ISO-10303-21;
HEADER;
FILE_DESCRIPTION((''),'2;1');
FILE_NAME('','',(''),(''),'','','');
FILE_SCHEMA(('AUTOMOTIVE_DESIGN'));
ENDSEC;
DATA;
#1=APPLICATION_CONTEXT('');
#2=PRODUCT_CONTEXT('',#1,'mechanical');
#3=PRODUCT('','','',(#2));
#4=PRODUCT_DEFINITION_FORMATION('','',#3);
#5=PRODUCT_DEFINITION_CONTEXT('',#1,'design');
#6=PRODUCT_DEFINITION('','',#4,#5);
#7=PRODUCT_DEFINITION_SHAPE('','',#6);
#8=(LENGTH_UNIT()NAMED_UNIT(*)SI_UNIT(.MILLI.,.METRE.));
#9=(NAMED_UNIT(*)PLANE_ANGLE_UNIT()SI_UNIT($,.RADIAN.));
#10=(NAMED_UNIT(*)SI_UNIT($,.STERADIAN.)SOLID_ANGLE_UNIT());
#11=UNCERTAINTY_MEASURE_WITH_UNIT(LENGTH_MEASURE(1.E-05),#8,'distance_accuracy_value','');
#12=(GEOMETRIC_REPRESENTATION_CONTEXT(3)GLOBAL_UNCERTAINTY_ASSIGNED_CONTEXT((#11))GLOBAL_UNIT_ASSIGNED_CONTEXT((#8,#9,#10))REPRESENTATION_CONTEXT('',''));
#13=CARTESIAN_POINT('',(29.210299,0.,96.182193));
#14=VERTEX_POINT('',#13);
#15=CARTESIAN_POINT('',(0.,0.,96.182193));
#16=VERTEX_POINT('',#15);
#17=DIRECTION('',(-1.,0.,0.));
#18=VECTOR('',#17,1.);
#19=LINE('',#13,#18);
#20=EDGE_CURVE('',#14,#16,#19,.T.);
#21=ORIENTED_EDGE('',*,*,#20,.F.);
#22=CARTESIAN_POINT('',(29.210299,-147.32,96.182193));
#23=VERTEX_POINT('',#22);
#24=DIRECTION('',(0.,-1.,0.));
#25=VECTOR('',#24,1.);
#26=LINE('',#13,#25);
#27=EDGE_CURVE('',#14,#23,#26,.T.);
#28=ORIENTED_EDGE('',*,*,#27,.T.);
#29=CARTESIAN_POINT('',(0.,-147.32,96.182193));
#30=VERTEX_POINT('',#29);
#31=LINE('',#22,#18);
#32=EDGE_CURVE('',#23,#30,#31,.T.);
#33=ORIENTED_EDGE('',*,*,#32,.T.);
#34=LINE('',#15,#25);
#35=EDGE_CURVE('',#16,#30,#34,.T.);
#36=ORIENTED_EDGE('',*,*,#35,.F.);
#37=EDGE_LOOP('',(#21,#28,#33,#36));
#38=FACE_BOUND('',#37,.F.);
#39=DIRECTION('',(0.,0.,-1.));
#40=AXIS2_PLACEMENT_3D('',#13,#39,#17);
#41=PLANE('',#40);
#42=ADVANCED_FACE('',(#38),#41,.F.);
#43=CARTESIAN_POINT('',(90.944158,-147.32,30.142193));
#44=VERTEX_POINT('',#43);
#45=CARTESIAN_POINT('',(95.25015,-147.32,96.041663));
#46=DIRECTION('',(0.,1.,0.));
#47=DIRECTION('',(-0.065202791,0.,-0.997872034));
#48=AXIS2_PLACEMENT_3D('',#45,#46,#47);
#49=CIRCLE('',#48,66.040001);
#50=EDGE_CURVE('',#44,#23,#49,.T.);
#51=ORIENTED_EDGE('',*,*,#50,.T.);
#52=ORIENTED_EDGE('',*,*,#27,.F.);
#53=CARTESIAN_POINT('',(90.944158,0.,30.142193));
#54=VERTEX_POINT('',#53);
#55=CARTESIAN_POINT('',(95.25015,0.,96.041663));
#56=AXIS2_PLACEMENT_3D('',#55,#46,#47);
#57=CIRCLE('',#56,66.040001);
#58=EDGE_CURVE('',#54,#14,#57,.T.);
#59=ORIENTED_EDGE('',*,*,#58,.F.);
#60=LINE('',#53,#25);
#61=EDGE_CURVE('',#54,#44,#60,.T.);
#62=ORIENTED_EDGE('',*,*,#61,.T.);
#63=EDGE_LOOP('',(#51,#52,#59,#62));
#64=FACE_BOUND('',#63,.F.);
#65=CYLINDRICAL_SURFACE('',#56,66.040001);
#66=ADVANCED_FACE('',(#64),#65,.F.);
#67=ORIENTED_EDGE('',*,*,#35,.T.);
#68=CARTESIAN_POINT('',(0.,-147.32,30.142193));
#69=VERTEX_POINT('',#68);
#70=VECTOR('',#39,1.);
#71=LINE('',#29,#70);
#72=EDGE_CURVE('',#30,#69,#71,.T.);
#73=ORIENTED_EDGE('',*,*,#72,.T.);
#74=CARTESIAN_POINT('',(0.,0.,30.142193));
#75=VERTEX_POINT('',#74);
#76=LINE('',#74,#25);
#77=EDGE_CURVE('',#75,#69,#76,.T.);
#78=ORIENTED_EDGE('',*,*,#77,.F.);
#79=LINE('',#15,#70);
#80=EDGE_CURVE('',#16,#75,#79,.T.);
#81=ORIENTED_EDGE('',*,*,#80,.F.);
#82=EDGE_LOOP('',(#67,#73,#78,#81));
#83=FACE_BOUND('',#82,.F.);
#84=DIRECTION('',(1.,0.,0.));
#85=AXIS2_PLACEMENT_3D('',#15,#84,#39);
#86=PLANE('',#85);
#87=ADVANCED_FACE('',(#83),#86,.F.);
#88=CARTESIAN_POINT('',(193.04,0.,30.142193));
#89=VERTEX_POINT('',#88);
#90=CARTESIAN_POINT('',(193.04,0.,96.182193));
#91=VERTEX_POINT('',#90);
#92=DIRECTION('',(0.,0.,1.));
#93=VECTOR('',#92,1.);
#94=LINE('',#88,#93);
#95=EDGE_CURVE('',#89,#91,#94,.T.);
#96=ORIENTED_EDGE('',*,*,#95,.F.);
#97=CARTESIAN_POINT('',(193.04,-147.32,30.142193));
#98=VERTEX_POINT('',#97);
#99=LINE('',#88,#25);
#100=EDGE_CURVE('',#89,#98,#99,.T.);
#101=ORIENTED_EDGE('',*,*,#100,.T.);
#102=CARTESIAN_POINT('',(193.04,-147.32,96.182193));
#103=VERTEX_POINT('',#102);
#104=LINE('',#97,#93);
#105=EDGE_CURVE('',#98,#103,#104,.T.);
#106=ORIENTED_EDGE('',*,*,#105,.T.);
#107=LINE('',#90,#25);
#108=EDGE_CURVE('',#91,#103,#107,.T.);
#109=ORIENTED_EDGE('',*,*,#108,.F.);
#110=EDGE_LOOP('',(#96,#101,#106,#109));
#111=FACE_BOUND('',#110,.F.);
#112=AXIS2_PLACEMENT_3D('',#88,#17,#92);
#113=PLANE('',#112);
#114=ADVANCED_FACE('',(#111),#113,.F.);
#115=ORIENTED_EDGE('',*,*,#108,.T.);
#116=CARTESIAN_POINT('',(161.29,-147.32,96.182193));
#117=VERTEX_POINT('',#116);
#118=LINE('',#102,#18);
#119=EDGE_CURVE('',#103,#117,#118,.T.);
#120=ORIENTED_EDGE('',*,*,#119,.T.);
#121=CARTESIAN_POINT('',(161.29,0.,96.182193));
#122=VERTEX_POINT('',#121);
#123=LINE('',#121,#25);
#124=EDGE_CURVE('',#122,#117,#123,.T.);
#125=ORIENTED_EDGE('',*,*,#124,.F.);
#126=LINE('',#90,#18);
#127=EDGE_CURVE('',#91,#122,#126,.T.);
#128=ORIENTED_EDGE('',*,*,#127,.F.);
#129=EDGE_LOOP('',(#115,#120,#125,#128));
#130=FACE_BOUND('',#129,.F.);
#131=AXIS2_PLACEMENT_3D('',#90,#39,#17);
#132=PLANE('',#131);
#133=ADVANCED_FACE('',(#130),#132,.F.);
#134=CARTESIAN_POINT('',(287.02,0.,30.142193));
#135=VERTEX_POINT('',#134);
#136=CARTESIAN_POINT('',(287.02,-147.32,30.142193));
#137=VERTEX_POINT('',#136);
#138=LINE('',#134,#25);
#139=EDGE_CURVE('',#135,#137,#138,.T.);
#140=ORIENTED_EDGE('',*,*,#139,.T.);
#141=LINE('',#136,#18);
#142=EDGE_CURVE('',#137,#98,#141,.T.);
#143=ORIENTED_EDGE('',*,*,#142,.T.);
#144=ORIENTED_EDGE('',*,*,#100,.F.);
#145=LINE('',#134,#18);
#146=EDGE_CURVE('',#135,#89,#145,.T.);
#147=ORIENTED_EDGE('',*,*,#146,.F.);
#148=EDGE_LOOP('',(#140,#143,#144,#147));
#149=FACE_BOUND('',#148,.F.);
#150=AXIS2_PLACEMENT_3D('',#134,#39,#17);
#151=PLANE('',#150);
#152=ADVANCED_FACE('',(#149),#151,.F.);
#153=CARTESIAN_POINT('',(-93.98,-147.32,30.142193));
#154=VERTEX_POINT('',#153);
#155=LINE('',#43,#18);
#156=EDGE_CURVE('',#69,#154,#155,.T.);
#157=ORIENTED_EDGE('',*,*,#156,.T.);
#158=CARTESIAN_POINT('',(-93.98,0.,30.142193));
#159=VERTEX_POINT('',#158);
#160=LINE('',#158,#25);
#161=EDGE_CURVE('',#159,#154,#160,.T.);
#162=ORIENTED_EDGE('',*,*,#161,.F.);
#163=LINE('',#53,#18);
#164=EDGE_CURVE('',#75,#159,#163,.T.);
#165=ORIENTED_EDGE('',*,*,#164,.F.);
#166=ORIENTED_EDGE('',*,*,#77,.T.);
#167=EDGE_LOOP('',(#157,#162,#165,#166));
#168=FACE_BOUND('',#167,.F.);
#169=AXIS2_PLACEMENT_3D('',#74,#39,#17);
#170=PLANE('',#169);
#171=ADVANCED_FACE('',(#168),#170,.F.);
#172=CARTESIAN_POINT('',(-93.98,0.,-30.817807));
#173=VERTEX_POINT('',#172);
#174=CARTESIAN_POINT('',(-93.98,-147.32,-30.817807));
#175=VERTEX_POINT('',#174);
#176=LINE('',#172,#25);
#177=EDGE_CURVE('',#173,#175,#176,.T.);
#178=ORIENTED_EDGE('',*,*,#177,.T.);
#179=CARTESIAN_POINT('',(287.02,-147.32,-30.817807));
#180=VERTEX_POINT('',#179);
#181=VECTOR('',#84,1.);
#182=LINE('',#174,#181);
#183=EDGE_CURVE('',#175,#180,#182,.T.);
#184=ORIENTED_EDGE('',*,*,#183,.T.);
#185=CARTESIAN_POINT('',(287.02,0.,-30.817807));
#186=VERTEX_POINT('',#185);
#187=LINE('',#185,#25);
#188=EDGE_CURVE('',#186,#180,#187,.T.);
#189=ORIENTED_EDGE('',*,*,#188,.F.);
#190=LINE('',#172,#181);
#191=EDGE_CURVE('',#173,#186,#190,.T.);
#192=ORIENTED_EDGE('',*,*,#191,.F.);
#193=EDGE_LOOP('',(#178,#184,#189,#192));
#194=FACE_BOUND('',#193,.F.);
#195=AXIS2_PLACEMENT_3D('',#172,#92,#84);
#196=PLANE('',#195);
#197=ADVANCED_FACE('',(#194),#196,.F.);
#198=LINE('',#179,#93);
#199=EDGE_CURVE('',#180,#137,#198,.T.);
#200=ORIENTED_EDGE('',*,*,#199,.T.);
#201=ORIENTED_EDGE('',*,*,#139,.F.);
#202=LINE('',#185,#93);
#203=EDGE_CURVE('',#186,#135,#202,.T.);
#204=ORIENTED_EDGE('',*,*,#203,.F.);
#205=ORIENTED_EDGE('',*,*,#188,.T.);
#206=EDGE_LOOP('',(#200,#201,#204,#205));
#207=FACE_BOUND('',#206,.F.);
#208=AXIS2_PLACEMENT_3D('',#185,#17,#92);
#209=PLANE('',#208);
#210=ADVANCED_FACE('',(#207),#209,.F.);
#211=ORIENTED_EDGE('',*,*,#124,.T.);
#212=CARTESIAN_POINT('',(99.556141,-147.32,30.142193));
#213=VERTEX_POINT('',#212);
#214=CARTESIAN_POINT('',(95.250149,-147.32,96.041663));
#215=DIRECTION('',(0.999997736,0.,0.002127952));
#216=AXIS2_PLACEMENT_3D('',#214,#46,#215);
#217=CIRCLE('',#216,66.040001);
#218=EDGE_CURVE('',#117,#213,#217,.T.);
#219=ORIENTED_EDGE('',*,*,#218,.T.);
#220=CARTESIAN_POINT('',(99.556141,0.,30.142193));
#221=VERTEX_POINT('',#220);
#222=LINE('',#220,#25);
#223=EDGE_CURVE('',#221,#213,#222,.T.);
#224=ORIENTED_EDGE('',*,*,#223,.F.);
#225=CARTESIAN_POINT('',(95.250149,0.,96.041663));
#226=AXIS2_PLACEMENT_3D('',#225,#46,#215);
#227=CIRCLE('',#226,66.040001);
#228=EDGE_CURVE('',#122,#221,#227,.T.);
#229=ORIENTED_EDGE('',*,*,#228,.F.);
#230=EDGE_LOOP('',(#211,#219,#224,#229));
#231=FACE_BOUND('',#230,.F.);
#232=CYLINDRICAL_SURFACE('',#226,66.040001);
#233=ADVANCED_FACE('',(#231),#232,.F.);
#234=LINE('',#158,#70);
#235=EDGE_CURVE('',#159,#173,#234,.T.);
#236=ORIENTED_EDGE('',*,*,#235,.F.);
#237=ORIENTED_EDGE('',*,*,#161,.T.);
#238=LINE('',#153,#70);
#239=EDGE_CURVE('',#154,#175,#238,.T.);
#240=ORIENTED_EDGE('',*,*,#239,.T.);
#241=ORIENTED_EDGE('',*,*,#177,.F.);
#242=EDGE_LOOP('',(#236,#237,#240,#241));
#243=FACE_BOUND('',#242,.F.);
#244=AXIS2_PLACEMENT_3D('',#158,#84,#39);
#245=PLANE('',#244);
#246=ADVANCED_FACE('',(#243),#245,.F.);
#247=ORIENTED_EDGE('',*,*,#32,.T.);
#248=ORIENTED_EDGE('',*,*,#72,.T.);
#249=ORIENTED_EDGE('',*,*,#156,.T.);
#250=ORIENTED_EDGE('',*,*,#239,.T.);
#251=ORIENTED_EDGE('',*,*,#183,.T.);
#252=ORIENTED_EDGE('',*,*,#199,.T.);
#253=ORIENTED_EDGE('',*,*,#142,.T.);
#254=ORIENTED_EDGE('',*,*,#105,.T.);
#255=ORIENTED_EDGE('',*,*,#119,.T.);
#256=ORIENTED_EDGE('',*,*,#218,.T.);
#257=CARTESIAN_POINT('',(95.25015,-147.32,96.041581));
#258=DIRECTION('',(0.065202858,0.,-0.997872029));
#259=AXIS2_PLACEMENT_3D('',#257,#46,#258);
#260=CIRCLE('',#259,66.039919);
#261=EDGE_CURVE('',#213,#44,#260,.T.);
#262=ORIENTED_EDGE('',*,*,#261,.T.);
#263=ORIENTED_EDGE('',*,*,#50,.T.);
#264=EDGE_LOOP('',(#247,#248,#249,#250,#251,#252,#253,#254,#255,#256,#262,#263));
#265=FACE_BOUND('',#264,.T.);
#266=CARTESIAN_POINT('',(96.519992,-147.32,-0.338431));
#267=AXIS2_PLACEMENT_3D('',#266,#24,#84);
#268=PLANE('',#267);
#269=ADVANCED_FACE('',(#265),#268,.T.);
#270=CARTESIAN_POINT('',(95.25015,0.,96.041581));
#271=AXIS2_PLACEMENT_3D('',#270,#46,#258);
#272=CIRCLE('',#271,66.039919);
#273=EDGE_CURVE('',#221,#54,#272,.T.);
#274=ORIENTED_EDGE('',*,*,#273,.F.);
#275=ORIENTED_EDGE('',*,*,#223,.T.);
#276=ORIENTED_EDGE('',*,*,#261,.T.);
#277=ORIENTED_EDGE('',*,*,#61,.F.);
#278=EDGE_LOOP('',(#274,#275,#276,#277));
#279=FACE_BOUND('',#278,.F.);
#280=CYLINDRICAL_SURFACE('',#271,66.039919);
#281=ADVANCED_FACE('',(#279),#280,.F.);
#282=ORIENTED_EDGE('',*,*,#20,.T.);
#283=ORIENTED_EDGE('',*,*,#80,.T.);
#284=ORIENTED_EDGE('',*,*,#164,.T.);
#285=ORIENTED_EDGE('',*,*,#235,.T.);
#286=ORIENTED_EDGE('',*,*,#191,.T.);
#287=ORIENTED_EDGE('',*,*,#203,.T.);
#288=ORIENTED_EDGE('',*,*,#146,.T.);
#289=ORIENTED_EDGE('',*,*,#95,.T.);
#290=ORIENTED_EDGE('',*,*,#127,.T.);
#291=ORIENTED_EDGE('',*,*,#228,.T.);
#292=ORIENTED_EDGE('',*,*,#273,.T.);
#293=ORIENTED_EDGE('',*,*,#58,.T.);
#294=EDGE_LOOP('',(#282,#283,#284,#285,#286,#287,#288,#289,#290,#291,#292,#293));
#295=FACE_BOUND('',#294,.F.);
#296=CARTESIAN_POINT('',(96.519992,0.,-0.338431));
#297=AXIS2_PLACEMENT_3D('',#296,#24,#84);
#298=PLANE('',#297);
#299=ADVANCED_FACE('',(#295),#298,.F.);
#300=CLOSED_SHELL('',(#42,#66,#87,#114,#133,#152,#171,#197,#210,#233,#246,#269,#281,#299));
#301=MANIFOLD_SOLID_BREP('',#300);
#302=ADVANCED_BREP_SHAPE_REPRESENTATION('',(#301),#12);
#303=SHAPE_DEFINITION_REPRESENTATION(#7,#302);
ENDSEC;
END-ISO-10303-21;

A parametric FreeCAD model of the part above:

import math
import FreeCAD as App
import Part
import Sketcher
Q = App.Units.Quantity

doc = App.newDocument("Part")
body = doc.addObject("PartDesign::Body", "Body")

# Sketch on XZ plane
sketch1 = body.newObject("Sketcher::SketchObject", "Sketch")
sketch1.AttachmentSupport = (doc.getObject("XZ_Plane"), [""])
sketch1.MapMode = "FlatFace"
sketch1.addGeometry(Part.LineSegment(App.Vector(-93.98, 30.142193, 0), App.Vector(-93.98, -30.817807, 0)), False)
sketch1.addGeometry(Part.LineSegment(App.Vector(-93.98, -30.817807, 0), App.Vector(287.02, -30.817807, 0)), False)
sketch1.addGeometry(Part.LineSegment(App.Vector(287.02, -30.817807, 0), App.Vector(287.02, 30.142193, 0)), False)
sketch1.addGeometry(Part.LineSegment(App.Vector(287.02, 30.142193, 0), App.Vector(193.04, 30.142193, 0)), False)
sketch1.addGeometry(Part.LineSegment(App.Vector(193.04, 30.142193, 0), App.Vector(193.04, 96.182193, 0)), False)
sketch1.addGeometry(Part.LineSegment(App.Vector(193.04, 96.182193, 0), App.Vector(161.29, 96.182193, 0)), False)
sketch1.addGeometry(Part.ArcOfCircle(Part.Circle(App.Vector(95.250149, 96.041663, 0), App.Vector(0, 0, 1), 66.040001), math.radians(-86.261503), math.radians(0.121923)), False)
sketch1.addGeometry(Part.ArcOfCircle(Part.Circle(App.Vector(95.25015, 96.041581, 0), App.Vector(0, 0, 1), 66.039919), math.radians(-93.738501), math.radians(-86.261499)), False)
sketch1.addGeometry(Part.ArcOfCircle(Part.Circle(App.Vector(95.25015, 96.041663, 0), App.Vector(0, 0, 1), 66.040001), math.radians(179.878077), math.radians(266.261503)), False)
sketch1.addGeometry(Part.LineSegment(App.Vector(29.210299, 96.182193, 0), App.Vector(0, 96.182193, 0)), False)
sketch1.addGeometry(Part.LineSegment(App.Vector(0, 96.182193, 0), App.Vector(0, 30.142193, 0)), False)
sketch1.addGeometry(Part.LineSegment(App.Vector(0, 30.142193, 0), App.Vector(-93.98, 30.142193, 0)), False)
sketch1.addConstraint(Sketcher.Constraint("Coincident", 0, 2, 1, 1))
sketch1.addConstraint(Sketcher.Constraint("Coincident", 1, 2, 2, 1))
sketch1.addConstraint(Sketcher.Constraint("Coincident", 2, 2, 3, 1))
sketch1.addConstraint(Sketcher.Constraint("Coincident", 3, 2, 4, 1))
sketch1.addConstraint(Sketcher.Constraint("Coincident", 4, 2, 5, 1))
sketch1.addConstraint(Sketcher.Constraint("Coincident", 5, 2, 6, 2))
sketch1.addConstraint(Sketcher.Constraint("Coincident", 6, 1, 7, 2))
sketch1.addConstraint(Sketcher.Constraint("Coincident", 7, 1, 8, 2))
sketch1.addConstraint(Sketcher.Constraint("Coincident", 8, 1, 9, 1))
sketch1.addConstraint(Sketcher.Constraint("Coincident", 9, 2, 10, 1))
sketch1.addConstraint(Sketcher.Constraint("Coincident", 10, 2, 11, 1))
sketch1.addConstraint(Sketcher.Constraint("Coincident", 11, 2, 0, 1))
sketch1.addConstraint(Sketcher.Constraint("Vertical", 0))
sketch1.addConstraint(Sketcher.Constraint("Horizontal", 1))
sketch1.addConstraint(Sketcher.Constraint("Vertical", 2))
sketch1.addConstraint(Sketcher.Constraint("Horizontal", 3))
sketch1.addConstraint(Sketcher.Constraint("Vertical", 4))
sketch1.addConstraint(Sketcher.Constraint("Horizontal", 5))
sketch1.addConstraint(Sketcher.Constraint("Horizontal", 9))
sketch1.addConstraint(Sketcher.Constraint("Vertical", 10))
sketch1.addConstraint(Sketcher.Constraint("Horizontal", 11))
sketch1.addConstraint(Sketcher.Constraint("Coincident", 8, 3, 6, 3))
sketch1.addConstraint(Sketcher.Constraint("PointOnObject", 9, 2, -2))
sketch1.addConstraint(Sketcher.Constraint("Radius", 6, Q("2.6 in")))
sketch1.addConstraint(Sketcher.Constraint("Radius", 8, Q("2.6 in")))
sketch1.addConstraint(Sketcher.Constraint("DistanceX", 1, 1, 1, 2, Q("15 in")))
sketch1.addConstraint(Sketcher.Constraint("DistanceX", 3, 2, 3, 1, Q("3.7 in")))
sketch1.addConstraint(Sketcher.Constraint("DistanceX", 11, 2, 11, 1, Q("3.7 in")))
sketch1.addConstraint(Sketcher.Constraint("DistanceY", 0, 2, 0, 1, Q("2.4 in")))
sketch1.addConstraint(Sketcher.Constraint("DistanceY", 2, 1, 2, 2, Q("2.4 in")))
sketch1.addConstraint(Sketcher.Constraint("DistanceY", 4, 1, 4, 2, Q("2.6 in")))
sketch1.addConstraint(Sketcher.Constraint("DistanceY", 10, 2, 10, 1, Q("2.6 in")))
sketch1.addConstraint(Sketcher.Constraint("DistanceX", 5, 2, 5, 1, Q("1.25 in")))
sketch1.addConstraint(Sketcher.Constraint("DistanceY", 6, 1, 5, 2, Q("2.6 in")))
sketch1.addConstraint(Sketcher.Constraint("DistanceY", 7, 1, 5, 2, Q("2.6 in")))
sketch1.addConstraint(Sketcher.Constraint("Radius", 7, Q("66.039919 mm")))
sketch1.addConstraint(Sketcher.Constraint("DistanceY", -1, 1, 7, 3, Q("96.041581 mm")))
sketch1.addConstraint(Sketcher.Constraint("DistanceX", -1, 1, 6, 1, Q("99.556141 mm")))
pad1 = body.newObject("PartDesign::Pad", "Pad")
pad1.Profile = sketch1
pad1.Length = Q("5.8 in")

doc.recompute()
